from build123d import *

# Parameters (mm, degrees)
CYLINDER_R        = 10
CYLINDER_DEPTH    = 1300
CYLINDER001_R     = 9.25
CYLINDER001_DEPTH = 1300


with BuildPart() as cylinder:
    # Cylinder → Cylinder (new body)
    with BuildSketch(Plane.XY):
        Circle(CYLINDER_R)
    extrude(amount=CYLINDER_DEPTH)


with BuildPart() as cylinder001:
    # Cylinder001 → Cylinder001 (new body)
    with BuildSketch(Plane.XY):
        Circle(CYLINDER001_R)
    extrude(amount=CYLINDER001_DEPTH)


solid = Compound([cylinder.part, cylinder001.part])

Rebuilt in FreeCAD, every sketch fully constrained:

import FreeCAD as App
import Part
import Sketcher
Q = App.Units.Quantity

doc = App.newDocument("Part")
body = doc.addObject("PartDesign::Body", "Body")

# Sketch on XY plane
sketch1 = body.newObject("Sketcher::SketchObject", "Sketch")
sketch1.AttachmentSupport = (doc.getObject("XY_Plane"), [""])
sketch1.MapMode = "FlatFace"
sketch1.addGeometry(Part.Circle(App.Vector(0, 0, 0), App.Vector(0, 0, 1), 10), False)
sketch1.addConstraint(Sketcher.Constraint("Coincident", 0, 3, -1, 1))
sketch1.addConstraint(Sketcher.Constraint("Diameter", 0, Q("20 mm")))
pad1 = body.newObject("PartDesign::Pad", "Pad")
pad1.Profile = sketch1
pad1.Length = 1300
body2 = doc.addObject("PartDesign::Body", "Body001")

# Sketch on XY plane
sketch2 = body2.newObject("Sketcher::SketchObject", "Sketch001")
sketch2.AttachmentSupport = (doc.getObject("XY_Plane001"), [""])
sketch2.MapMode = "FlatFace"
sketch2.addGeometry(Part.Circle(App.Vector(0, 0, 0), App.Vector(0, 0, 1), 9), False)
sketch2.addConstraint(Sketcher.Constraint("Coincident", 0, 3, -1, 1))
sketch2.addConstraint(Sketcher.Constraint("Diameter", 0, Q("18.5 mm")))
pad2 = body2.newObject("PartDesign::Pad", "Pad001")
pad2.Profile = sketch2
pad2.Length = 1300

doc.recompute()
